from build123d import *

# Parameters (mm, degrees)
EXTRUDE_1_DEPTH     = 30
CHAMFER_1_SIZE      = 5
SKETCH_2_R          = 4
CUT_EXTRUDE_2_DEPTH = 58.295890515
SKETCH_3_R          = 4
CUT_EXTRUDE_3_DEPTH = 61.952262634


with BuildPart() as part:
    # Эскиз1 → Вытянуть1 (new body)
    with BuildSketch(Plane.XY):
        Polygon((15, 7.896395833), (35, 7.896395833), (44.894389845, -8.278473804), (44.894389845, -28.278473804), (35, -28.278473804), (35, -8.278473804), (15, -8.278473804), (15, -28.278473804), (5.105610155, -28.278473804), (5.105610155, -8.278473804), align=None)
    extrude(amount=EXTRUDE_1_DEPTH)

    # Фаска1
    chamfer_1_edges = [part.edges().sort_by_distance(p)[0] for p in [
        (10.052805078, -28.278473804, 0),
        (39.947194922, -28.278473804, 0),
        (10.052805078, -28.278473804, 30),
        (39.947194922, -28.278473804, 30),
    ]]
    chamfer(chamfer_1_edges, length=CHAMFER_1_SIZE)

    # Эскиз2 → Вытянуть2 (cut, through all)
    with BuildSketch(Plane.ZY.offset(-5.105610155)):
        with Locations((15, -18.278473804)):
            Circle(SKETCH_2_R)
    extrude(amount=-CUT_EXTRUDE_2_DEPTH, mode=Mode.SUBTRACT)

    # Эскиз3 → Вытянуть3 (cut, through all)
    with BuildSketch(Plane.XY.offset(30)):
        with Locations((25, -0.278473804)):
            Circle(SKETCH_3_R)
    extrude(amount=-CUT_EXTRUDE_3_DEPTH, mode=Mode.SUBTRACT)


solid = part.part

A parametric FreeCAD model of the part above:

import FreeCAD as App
import Part
import Sketcher

V = App.Vector


def edges_at(feature, points):
    """Names of the edges that pass closest to the given points."""
    edges = feature.Shape.Edges
    near = lambda p: min(range(len(edges)), key=lambda i: edges[i].distToShape(Part.Vertex(*p))[0])
    return sorted({f"Edge{near(p) + 1}" for p in points})


def add_polygon(sketch, points):
    """Adds a closed chain of lines whose ends are joined by coincident constraints."""
    first, n = sketch.GeometryCount, len(points)
    for a, b in zip(points, points[1:] + points[:1]):
        sketch.addGeometry(Part.LineSegment(App.Vector(*a, 0), App.Vector(*b, 0)), False)
    for i in range(n):
        sketch.addConstraint(Sketcher.Constraint("Coincident", first + i, 2, first + (i + 1) % n, 1))

doc = App.newDocument("Part")
body = doc.addObject("PartDesign::Body", "Body")

sketch1 = body.newObject("Sketcher::SketchObject", "Sketch")
sketch1.AttachmentSupport = (doc.getObject("XY_Plane"), [""])
sketch1.MapMode = "FlatFace"
add_polygon(sketch1, [(35, 7.896396), (15, 7.896396), (5.10561, -8.278474), (5.10561, -28.278474), (15, -28.278474), (15, -8.278474), (35, -8.278474), (35, -28.278474), (44.89439, -28.278474), (44.89439, -8.278474)])
sketch1.addConstraint(Sketcher.Constraint("Horizontal", 0))
sketch1.addConstraint(Sketcher.Constraint("Vertical", 2))
sketch1.addConstraint(Sketcher.Constraint("Horizontal", 3))
sketch1.addConstraint(Sketcher.Constraint("Vertical", 4))
sketch1.addConstraint(Sketcher.Constraint("Horizontal", 5))
sketch1.addConstraint(Sketcher.Constraint("Vertical", 6))
sketch1.addConstraint(Sketcher.Constraint("Horizontal", 7))
sketch1.addConstraint(Sketcher.Constraint("Vertical", 8))
sketch1.addConstraint(Sketcher.Constraint("Horizontal", 1, 2, 4, 2))
sketch1.addConstraint(Sketcher.Constraint("Horizontal", 3, 2, 6, 2))
sketch1.addConstraint(Sketcher.Constraint("Horizontal", 5, 2, 8, 2))
sketch1.addConstraint(Sketcher.Constraint("Vertical", 0, 2, 3, 2))
sketch1.addConstraint(Sketcher.Constraint("Vertical", 6, 2, 9, 2))
sketch1.addConstraint(Sketcher.Constraint("Equal", 3, 7))
sketch1.addConstraint(Sketcher.Constraint("Equal", 5, 2))
sketch1.addConstraint(Sketcher.Constraint("DistanceX", 0, 2, 0, 1, 20.0))
sketch1.addConstraint(Sketcher.Constraint("DistanceX", -1, 1, 0, 2, 15.0))
sketch1.addConstraint(Sketcher.Constraint("DistanceX", 3, 1, 3, 2, 9.89439))
sketch1.addConstraint(Sketcher.Constraint("DistanceY", 1, 2, 0, 2, 16.17487))
sketch1.addConstraint(Sketcher.Constraint("DistanceY", -1, 1, 0, 2, 7.896396))
pad1 = body.newObject("PartDesign::Pad", "Pad")
pad1.Profile = sketch1
pad1.Length = 30
doc.recompute()

chamfer = body.newObject("PartDesign::Chamfer", "Chamfer")
chamfer.Base = (pad1, edges_at(pad1, [
    (10.053, -28.278, 0),
    (39.947, -28.278, 0),
    (10.053, -28.278, 30),
    (39.947, -28.278, 30),
]))
chamfer.Size = 5

sketch2 = body.newObject("Sketcher::SketchObject", "Sketch001")
sketch2.AttachmentSupport = (doc.getObject("YZ_Plane"), [""])
sketch2.MapMode = "FlatFace"
sketch2.AttachmentOffset = App.Placement(V(0, 0, 5.10561), App.Rotation())
sketch2.addGeometry(Part.Circle(V(-18.278474, 15, 0), V(0, 0, 1), 4), False)
sketch2.addConstraint(Sketcher.Constraint("Diameter", 0, 8.0))
sketch2.addConstraint(Sketcher.Constraint("DistanceY", -1, 1, 0, 3, 15.0))
sketch2.addConstraint(Sketcher.Constraint("DistanceX", 0, 3, -1, 1, 18.278474))
pocket1 = body.newObject("PartDesign::Pocket", "Pocket")
pocket1.Profile = sketch2
pocket1.Type = "ThroughAll"
pocket1.Reversed = True

sketch3 = body.newObject("Sketcher::SketchObject", "Sketch002")
sketch3.AttachmentSupport = (doc.getObject("XY_Plane"), [""])
sketch3.MapMode = "FlatFace"
sketch3.AttachmentOffset = App.Placement(V(0, 0, 30), App.Rotation())
sketch3.addGeometry(Part.Circle(V(25, -0.278474, 0), V(0, 0, 1), 4), False)
sketch3.addConstraint(Sketcher.Constraint("Diameter", 0, 8.0))
sketch3.addConstraint(Sketcher.Constraint("DistanceX", -1, 1, 0, 3, 25.0))
sketch3.addConstraint(Sketcher.Constraint("DistanceY", 0, 3, -1, 1, 0.278474))
pocket2 = body.newObject("PartDesign::Pocket", "Pocket001")
pocket2.Profile = sketch3
pocket2.Type = "ThroughAll"

doc.recompute()
